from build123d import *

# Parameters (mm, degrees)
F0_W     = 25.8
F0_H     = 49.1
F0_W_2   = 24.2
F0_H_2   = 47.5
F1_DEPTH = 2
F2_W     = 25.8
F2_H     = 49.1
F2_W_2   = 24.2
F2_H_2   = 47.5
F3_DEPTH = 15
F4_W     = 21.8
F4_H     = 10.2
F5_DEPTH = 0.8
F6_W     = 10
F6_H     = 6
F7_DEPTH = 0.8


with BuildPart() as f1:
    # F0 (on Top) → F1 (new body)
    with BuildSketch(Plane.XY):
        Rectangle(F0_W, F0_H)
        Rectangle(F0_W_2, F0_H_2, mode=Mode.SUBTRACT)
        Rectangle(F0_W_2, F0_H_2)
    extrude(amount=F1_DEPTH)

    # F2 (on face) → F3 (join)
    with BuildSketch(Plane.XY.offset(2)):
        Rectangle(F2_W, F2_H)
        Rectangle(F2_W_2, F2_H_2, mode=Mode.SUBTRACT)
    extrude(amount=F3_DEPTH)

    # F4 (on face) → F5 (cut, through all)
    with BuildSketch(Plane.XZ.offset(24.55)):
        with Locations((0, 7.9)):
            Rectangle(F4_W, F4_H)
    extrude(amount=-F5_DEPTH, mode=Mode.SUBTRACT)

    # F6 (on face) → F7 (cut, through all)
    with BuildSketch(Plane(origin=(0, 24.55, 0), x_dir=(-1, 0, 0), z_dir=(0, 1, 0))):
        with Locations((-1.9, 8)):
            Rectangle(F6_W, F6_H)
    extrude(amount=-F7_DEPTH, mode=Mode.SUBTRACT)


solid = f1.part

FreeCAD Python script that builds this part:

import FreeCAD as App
import Part
import Sketcher

doc = App.newDocument("Part")
body = doc.addObject("PartDesign::Body", "Body")

# Sketch on XY plane
sketch1 = body.newObject("Sketcher::SketchObject", "Sketch")
sketch1.AttachmentSupport = (doc.getObject("XY_Plane"), [""])
sketch1.MapMode = "FlatFace"
sketch1.addGeometry([
    Part.LineSegment(App.Vector(-13, 25, 0), App.Vector(-13, -25, 0)),
    Part.LineSegment(App.Vector(-13, -25, 0), App.Vector(13, -25, 0)),
    Part.LineSegment(App.Vector(13, -25, 0), App.Vector(13, 25, 0)),
    Part.LineSegment(App.Vector(13, 25, 0), App.Vector(-13, 25, 0)),
], False)
sketch1.addConstraint([
    Sketcher.Constraint("Coincident", 0, 2, 1, 1),
    Sketcher.Constraint("Coincident", 1, 2, 2, 1),
    Sketcher.Constraint("Coincident", 2, 2, 3, 1),
    Sketcher.Constraint("Coincident", 3, 2, 0, 1),
    Sketcher.Constraint("Vertical", 0),
    Sketcher.Constraint("Horizontal", 1),
    Sketcher.Constraint("Vertical", 2),
    Sketcher.Constraint("Horizontal", 3),
    Sketcher.Constraint("Symmetric", 0, 2, 2, 2, -1, 1),
    Sketcher.Constraint("DistanceX", 1, 1, 1, 2, 25.8),
    Sketcher.Constraint("DistanceY", 0, 2, 0, 1, 49.1),
])
pad1 = body.newObject("PartDesign::Pad", "Pad")
pad1.Profile = sketch1
pad1.Length = 2

# Sketch on XY plane
sketch2 = body.newObject("Sketcher::SketchObject", "Sketch001")
sketch2.AttachmentSupport = (doc.getObject("XY_Plane"), [""])
sketch2.MapMode = "FlatFace"
sketch2.AttachmentOffset = App.Placement(App.Vector(0, 0, 2), App.Rotation())
sketch2.addGeometry([
    Part.LineSegment(App.Vector(-13, 25, 0), App.Vector(-13, -25, 0)),  # 0
    Part.LineSegment(App.Vector(-13, -25, 0), App.Vector(13, -25, 0)),  # 1
    Part.LineSegment(App.Vector(13, -25, 0), App.Vector(13, 25, 0)),  # 2
    Part.LineSegment(App.Vector(13, 25, 0), App.Vector(-13, 25, 0)),  # 3
    Part.LineSegment(App.Vector(12, -24, 0), App.Vector(-12, -24, 0)),  # 4
    Part.LineSegment(App.Vector(-12, -24, 0), App.Vector(-12, 24, 0)),  # 5
    Part.LineSegment(App.Vector(-12, 24, 0), App.Vector(12, 24, 0)),  # 6
    Part.LineSegment(App.Vector(12, 24, 0), App.Vector(12, -24, 0)),  # 7
], False)
sketch2.addConstraint([
    Sketcher.Constraint("Coincident", 0, 2, 1, 1),
    Sketcher.Constraint("Coincident", 1, 2, 2, 1),
    Sketcher.Constraint("Coincident", 2, 2, 3, 1),
    Sketcher.Constraint("Coincident", 3, 2, 0, 1),
    Sketcher.Constraint("Coincident", 4, 2, 5, 1),
    Sketcher.Constraint("Coincident", 5, 2, 6, 1),
    Sketcher.Constraint("Coincident", 6, 2, 7, 1),
    Sketcher.Constraint("Coincident", 7, 2, 4, 1),
    Sketcher.Constraint("Vertical", 0),
    Sketcher.Constraint("Horizontal", 1),
    Sketcher.Constraint("Vertical", 2),
    Sketcher.Constraint("Horizontal", 3),
    Sketcher.Constraint("Horizontal", 4),
    Sketcher.Constraint("Vertical", 5),
    Sketcher.Constraint("Horizontal", 6),
    Sketcher.Constraint("Vertical", 7),
    Sketcher.Constraint("Symmetric", 0, 2, 2, 2, -1, 1),
    Sketcher.Constraint("Symmetric", 4, 2, 6, 2, -1, 1),
    Sketcher.Constraint("DistanceX", 1, 1, 1, 2, 25.8),
    Sketcher.Constraint("DistanceX", 4, 2, 4, 1, 24.2),
    Sketcher.Constraint("DistanceY", 0, 2, 0, 1, 49.1),
    Sketcher.Constraint("DistanceY", 5, 1, 5, 2, 47.5),
])
pad2 = body.newObject("PartDesign::Pad", "Pad001")
pad2.Profile = sketch2
pad2.Length = 15

# Sketch on XZ plane
sketch3 = body.newObject("Sketcher::SketchObject", "Sketch002")
sketch3.AttachmentSupport = (doc.getObject("XZ_Plane"), [""])
sketch3.MapMode = "FlatFace"
sketch3.AttachmentOffset = App.Placement(App.Vector(0, 0, 24.55), App.Rotation())
sketch3.addGeometry([
    Part.LineSegment(App.Vector(-11, 13, 0), App.Vector(-11, 3, 0)),
    Part.LineSegment(App.Vector(-11, 3, 0), App.Vector(11, 3, 0)),
    Part.LineSegment(App.Vector(11, 3, 0), App.Vector(11, 13, 0)),
    Part.LineSegment(App.Vector(11, 13, 0), App.Vector(-11, 13, 0)),
], False)
sketch3.addConstraint([
    Sketcher.Constraint("Coincident", 0, 2, 1, 1),
    Sketcher.Constraint("Coincident", 1, 2, 2, 1),
    Sketcher.Constraint("Coincident", 2, 2, 3, 1),
    Sketcher.Constraint("Coincident", 3, 2, 0, 1),
    Sketcher.Constraint("Vertical", 0),
    Sketcher.Constraint("Horizontal", 1),
    Sketcher.Constraint("Vertical", 2),
    Sketcher.Constraint("Horizontal", 3),
    Sketcher.Constraint("DistanceX", 1, 1, 1, 2, 21.8),
    Sketcher.Constraint("DistanceY", 0, 2, 0, 1, 10.2),
    Sketcher.Constraint("DistanceY", -1, 1, 2, 2, 13.0),
    Sketcher.Constraint("DistanceX", 0, 2, -1, 1, 10.9),
])
pocket1 = body.newObject("PartDesign::Pocket", "Pocket")
pocket1.Profile = sketch3
pocket1.Length = 0.8

# Sketch on XZ plane
sketch4 = body.newObject("Sketcher::SketchObject", "Sketch003")
sketch4.AttachmentSupport = (doc.getObject("XZ_Plane"), [""])
sketch4.MapMode = "FlatFace"
sketch4.AttachmentOffset = App.Placement(App.Vector(0, 0, -24.55), App.Rotation())
sketch4.addGeometry([
    Part.LineSegment(App.Vector(7, 11, 0), App.Vector(7, 5, 0)),
    Part.LineSegment(App.Vector(7, 5, 0), App.Vector(-3, 5, 0)),
    Part.LineSegment(App.Vector(-3, 5, 0), App.Vector(-3, 11, 0)),
    Part.LineSegment(App.Vector(-3, 11, 0), App.Vector(7, 11, 0)),
], False)
sketch4.addConstraint([
    Sketcher.Constraint("Coincident", 0, 2, 1, 1),
    Sketcher.Constraint("Coincident", 1, 2, 2, 1),
    Sketcher.Constraint("Coincident", 2, 2, 3, 1),
    Sketcher.Constraint("Coincident", 3, 2, 0, 1),
    Sketcher.Constraint("Vertical", 0),
    Sketcher.Constraint("Horizontal", 1),
    Sketcher.Constraint("Vertical", 2),
    Sketcher.Constraint("Horizontal", 3),
    Sketcher.Constraint("DistanceX", 1, 2, 1, 1, 10.0),
    Sketcher.Constraint("DistanceY", 0, 2, 0, 1, 6.0),
    Sketcher.Constraint("DistanceY", -1, 1, 0, 2, 5.0),
    Sketcher.Constraint("DistanceX", -1, 1, 0, 2, 6.9),
])
pocket2 = body.newObject("PartDesign::Pocket", "Pocket001")
pocket2.Profile = sketch4
pocket2.Type = "ThroughAll"
pocket2.Reversed = True

doc.recompute()
